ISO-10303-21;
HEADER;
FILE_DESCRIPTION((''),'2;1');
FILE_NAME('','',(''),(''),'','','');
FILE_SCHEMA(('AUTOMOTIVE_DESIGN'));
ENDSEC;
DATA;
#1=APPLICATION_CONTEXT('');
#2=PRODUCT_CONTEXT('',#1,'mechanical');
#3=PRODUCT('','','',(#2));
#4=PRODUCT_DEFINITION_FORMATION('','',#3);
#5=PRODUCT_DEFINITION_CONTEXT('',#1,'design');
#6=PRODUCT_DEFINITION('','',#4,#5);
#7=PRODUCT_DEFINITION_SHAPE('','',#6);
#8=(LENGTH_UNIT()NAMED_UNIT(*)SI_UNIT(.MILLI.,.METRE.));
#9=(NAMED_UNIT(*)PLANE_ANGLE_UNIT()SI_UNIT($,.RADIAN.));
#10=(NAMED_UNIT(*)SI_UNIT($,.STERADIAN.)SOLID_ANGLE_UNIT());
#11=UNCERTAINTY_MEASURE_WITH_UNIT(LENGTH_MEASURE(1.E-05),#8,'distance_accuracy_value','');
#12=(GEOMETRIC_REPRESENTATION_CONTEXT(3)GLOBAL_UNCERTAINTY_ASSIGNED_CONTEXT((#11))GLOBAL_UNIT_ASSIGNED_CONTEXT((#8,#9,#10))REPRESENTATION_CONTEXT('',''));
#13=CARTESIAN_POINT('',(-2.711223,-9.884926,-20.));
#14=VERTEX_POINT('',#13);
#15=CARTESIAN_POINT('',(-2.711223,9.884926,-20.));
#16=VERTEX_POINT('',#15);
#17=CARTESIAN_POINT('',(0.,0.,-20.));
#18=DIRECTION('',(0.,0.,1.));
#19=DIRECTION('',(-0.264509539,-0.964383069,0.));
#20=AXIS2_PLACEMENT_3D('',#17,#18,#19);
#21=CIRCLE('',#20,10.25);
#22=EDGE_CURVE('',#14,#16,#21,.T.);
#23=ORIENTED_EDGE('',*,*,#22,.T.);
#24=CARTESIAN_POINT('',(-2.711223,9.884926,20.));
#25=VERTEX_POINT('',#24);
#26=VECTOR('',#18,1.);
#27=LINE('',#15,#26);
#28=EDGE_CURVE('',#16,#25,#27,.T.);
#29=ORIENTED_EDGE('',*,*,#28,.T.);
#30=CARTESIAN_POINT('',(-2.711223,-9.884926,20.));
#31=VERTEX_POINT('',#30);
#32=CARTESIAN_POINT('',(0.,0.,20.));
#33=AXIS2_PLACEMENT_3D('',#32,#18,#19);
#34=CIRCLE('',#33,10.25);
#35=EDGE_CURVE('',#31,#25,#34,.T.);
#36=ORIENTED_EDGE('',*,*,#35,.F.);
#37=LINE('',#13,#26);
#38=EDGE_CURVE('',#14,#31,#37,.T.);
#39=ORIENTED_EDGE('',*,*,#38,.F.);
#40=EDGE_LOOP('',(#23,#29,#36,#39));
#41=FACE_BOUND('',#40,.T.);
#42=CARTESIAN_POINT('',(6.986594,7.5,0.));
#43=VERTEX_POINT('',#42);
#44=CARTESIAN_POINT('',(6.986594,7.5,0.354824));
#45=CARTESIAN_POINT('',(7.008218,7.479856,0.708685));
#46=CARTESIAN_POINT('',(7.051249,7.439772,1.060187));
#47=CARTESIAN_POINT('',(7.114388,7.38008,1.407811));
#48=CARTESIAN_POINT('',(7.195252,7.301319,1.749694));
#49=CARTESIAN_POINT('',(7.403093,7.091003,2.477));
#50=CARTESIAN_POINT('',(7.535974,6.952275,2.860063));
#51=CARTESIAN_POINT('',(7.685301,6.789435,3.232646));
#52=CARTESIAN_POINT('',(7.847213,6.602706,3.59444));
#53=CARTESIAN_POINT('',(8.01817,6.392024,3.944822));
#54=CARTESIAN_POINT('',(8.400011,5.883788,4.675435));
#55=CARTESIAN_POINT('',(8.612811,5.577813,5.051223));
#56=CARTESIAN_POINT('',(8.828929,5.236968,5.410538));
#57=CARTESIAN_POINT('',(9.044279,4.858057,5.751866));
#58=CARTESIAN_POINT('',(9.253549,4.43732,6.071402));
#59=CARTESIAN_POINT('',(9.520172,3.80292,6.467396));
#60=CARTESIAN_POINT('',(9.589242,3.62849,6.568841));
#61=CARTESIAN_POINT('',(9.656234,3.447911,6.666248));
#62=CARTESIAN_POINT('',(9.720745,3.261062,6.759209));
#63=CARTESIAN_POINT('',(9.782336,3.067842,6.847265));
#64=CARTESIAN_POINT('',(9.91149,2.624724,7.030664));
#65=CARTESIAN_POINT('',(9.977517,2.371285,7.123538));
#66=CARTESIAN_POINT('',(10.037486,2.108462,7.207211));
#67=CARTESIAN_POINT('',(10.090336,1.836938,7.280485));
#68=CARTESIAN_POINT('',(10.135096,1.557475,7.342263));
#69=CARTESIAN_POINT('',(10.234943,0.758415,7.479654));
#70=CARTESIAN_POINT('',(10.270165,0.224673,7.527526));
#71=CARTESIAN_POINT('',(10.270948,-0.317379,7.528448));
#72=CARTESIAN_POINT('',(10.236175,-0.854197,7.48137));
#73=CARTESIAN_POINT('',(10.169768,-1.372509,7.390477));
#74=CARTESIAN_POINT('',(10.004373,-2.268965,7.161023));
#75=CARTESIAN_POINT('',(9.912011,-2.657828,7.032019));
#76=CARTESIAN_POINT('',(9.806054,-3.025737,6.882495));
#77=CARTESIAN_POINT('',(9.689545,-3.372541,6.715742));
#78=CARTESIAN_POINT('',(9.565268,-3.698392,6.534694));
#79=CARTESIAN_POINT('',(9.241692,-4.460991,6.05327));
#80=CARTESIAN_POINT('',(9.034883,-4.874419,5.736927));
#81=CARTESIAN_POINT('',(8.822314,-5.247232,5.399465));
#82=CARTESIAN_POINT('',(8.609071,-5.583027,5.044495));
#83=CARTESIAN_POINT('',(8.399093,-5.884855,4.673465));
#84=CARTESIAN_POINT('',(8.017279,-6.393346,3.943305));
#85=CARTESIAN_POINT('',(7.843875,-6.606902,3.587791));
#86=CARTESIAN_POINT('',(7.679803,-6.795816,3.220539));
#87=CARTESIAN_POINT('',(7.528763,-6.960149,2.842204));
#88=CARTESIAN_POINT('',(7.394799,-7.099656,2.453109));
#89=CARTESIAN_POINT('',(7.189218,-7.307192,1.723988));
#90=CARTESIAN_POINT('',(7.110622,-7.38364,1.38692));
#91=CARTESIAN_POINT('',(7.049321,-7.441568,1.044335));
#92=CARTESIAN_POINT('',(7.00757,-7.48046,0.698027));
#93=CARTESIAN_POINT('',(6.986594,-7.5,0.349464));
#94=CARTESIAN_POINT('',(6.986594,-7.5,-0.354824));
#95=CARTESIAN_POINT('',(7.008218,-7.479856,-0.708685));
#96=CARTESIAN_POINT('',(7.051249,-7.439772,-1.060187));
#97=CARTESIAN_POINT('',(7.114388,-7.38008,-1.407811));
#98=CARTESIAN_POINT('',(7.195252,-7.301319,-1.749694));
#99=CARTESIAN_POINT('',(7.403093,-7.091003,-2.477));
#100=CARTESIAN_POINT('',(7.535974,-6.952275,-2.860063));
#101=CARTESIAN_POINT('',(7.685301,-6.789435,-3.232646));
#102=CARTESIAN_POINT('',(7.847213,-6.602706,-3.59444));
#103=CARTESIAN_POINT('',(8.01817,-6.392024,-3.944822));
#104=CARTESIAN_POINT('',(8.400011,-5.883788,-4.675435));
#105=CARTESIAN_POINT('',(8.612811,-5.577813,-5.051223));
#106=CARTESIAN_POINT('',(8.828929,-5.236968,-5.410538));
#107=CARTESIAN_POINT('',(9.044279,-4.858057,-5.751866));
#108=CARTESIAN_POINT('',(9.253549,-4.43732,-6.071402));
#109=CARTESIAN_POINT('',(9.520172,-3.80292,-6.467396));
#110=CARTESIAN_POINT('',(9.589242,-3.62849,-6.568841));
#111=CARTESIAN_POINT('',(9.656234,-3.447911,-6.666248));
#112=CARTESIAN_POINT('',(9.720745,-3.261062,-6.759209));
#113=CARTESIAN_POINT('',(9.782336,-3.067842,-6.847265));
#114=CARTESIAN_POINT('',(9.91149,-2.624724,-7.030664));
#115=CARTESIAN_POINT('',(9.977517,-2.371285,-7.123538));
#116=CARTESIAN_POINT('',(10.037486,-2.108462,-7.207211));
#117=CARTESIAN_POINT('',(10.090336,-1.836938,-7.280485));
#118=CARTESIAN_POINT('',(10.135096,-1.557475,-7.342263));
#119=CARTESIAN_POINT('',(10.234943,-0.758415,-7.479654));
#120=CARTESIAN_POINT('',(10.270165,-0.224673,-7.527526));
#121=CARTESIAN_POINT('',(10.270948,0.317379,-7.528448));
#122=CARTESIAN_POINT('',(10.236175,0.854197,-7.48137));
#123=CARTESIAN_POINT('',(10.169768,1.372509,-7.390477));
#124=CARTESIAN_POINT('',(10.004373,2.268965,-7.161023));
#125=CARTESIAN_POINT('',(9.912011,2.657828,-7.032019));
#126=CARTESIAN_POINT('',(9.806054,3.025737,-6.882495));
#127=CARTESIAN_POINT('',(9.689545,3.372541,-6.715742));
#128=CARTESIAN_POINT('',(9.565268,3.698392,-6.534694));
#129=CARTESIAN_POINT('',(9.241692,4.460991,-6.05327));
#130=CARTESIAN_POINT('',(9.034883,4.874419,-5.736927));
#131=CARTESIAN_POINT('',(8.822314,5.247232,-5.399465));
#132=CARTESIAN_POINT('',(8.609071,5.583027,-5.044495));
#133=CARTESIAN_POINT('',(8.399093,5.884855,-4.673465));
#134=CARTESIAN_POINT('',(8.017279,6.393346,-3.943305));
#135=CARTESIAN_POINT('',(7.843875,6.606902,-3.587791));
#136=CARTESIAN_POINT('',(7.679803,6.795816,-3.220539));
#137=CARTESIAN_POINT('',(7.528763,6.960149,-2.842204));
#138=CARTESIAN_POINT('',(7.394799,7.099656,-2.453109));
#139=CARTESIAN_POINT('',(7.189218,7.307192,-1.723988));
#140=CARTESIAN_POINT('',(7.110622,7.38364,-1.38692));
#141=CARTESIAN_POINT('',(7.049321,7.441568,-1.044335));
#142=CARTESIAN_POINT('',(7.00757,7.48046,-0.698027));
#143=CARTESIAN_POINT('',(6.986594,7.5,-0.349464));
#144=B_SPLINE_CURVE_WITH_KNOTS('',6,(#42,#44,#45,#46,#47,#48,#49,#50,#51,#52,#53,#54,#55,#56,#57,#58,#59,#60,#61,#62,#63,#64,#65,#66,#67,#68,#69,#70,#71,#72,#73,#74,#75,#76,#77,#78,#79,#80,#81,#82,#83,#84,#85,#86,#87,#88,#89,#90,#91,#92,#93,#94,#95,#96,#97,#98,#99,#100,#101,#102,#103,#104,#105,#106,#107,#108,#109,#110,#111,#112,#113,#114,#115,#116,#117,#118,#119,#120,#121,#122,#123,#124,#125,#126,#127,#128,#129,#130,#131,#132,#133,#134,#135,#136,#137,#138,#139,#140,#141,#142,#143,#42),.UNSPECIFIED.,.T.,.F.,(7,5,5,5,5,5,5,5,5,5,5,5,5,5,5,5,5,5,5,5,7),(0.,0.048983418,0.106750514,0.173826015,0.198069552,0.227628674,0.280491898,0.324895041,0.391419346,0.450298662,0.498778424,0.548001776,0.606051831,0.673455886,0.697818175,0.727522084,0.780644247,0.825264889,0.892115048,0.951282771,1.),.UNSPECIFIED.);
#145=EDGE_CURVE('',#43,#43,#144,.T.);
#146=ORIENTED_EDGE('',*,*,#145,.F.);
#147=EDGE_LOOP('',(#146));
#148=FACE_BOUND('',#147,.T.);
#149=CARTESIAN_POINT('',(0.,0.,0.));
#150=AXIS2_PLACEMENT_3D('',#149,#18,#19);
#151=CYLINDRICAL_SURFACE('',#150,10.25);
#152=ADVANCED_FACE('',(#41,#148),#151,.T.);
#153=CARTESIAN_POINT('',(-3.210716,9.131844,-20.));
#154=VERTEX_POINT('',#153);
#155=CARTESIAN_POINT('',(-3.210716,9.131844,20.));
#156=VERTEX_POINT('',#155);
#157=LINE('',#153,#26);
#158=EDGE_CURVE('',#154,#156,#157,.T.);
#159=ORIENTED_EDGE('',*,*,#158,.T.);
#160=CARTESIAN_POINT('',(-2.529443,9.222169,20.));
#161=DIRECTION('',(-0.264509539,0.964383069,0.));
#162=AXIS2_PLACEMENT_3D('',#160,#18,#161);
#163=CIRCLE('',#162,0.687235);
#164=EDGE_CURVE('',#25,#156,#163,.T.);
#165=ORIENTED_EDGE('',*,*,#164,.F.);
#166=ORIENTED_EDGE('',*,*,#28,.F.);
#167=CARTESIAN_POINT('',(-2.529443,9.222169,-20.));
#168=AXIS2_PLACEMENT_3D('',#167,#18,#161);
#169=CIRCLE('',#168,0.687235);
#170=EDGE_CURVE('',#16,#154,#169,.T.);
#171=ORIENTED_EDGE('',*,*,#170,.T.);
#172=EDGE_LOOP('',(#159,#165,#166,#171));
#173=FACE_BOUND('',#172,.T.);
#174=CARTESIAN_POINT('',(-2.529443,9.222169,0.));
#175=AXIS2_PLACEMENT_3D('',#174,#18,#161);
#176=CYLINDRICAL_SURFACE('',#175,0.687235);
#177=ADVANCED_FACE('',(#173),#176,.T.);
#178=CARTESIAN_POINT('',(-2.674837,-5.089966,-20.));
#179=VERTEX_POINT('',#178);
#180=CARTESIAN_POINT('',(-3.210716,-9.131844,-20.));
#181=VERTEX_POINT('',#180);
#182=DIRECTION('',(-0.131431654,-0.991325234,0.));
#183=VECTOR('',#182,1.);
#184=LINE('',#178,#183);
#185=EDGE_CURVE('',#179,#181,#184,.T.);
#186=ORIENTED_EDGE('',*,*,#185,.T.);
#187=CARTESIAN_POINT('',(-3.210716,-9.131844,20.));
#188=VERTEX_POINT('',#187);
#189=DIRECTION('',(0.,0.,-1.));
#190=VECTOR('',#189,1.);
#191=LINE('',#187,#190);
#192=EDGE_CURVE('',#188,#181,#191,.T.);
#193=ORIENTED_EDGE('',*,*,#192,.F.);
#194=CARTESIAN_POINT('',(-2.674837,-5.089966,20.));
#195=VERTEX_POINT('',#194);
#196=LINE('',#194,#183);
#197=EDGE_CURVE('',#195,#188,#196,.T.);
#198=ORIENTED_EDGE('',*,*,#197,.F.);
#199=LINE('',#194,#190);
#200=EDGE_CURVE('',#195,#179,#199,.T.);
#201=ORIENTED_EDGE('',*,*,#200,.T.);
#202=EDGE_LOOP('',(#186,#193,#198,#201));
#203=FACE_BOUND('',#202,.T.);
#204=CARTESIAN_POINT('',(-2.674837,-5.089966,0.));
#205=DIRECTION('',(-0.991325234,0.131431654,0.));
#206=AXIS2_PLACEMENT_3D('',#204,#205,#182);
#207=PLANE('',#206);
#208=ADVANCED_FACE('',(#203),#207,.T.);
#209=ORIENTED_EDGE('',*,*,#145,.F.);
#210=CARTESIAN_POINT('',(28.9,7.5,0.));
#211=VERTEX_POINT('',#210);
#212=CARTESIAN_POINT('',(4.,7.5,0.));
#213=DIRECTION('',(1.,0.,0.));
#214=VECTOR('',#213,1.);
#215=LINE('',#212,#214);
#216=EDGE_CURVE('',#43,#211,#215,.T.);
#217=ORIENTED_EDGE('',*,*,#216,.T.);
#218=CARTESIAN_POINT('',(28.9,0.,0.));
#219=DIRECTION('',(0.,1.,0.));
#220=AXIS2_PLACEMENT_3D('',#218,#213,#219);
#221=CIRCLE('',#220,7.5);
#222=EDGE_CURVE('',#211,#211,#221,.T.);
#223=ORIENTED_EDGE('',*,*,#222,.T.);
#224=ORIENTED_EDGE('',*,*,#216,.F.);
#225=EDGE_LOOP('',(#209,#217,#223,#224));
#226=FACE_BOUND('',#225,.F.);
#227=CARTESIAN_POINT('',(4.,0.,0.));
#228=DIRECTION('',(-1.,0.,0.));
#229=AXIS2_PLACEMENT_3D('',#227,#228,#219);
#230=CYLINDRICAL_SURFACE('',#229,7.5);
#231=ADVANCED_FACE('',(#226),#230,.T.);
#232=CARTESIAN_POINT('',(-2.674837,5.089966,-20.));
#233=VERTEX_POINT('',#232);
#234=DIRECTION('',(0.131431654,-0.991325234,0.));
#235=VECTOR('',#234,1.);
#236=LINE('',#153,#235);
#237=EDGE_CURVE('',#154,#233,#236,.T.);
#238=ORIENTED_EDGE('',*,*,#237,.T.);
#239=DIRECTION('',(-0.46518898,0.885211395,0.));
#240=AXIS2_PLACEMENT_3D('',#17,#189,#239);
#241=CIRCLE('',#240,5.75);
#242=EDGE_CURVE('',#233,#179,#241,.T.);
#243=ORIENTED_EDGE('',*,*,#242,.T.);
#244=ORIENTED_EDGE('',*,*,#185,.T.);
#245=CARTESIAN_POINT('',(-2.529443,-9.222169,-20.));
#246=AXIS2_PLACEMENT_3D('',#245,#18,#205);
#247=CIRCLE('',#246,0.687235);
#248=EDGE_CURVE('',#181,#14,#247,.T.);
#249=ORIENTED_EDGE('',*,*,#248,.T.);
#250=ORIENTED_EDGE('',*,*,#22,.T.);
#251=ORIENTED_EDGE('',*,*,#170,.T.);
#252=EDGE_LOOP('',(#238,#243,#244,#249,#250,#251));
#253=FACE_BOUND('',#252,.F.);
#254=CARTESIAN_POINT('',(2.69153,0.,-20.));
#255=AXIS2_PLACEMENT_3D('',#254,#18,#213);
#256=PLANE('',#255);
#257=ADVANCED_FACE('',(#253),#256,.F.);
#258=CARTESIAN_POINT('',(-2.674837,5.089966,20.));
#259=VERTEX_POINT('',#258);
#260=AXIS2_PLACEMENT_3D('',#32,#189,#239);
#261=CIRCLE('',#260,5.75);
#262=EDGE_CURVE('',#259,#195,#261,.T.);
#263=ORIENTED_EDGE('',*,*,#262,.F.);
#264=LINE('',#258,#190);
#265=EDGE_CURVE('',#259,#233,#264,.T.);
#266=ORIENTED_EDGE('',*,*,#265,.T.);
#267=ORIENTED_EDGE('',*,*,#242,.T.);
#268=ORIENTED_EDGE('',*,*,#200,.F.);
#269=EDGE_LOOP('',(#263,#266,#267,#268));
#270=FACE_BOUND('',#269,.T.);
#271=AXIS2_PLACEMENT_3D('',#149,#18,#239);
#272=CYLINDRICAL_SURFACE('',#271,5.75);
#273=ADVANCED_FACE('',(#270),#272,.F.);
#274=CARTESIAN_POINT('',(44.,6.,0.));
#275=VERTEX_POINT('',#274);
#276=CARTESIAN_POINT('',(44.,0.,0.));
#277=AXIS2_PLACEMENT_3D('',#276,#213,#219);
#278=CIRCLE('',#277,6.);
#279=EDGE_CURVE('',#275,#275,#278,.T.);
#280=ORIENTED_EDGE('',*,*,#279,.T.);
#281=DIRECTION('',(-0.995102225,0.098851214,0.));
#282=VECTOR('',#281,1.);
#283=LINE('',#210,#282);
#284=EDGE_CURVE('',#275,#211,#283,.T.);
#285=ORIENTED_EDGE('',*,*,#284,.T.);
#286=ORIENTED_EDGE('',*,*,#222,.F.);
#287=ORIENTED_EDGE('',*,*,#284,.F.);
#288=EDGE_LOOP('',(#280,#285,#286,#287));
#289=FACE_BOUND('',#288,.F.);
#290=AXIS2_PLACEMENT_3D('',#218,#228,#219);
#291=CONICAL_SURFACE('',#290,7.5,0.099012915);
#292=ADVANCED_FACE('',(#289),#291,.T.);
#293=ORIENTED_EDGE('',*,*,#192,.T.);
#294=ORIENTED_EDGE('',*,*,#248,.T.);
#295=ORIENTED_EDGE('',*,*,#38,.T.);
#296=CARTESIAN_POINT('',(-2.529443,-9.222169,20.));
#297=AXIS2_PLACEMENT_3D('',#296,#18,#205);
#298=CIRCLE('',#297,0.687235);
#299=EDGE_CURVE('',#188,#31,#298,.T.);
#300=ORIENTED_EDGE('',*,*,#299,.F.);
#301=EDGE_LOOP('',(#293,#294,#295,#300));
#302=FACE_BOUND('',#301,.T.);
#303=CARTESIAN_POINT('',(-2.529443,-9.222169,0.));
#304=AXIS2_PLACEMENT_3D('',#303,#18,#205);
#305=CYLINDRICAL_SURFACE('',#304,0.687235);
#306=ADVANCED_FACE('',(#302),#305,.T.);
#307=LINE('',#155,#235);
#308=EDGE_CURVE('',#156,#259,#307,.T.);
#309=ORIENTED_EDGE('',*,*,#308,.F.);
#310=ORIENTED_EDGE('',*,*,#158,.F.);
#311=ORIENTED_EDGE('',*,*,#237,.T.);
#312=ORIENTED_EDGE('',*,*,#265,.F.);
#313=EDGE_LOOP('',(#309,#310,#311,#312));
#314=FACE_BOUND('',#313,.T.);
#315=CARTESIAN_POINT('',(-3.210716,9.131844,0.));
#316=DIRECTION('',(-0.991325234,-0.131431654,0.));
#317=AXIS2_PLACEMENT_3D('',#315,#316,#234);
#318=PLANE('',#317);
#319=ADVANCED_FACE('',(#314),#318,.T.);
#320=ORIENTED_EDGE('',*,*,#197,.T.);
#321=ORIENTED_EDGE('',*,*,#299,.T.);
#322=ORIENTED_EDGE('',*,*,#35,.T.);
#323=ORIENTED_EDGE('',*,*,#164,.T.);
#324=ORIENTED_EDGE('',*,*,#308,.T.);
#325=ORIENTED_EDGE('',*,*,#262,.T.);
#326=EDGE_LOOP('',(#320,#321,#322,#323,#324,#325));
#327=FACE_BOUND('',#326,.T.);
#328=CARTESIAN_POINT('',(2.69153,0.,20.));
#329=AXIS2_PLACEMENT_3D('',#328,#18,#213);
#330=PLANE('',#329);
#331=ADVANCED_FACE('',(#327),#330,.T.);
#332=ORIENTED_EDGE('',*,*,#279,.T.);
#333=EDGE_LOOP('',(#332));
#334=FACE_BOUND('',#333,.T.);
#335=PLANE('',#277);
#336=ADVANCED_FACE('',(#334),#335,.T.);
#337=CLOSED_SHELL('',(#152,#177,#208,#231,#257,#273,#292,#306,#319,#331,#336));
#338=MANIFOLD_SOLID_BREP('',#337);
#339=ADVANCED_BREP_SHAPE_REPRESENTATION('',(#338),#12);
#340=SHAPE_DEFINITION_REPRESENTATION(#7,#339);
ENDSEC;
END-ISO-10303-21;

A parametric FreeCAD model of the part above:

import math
import FreeCAD as App
import Part
import Sketcher
from FreeCAD import Vector


def edges_at(feature, points):
    """Names of the edges that pass closest to the given points."""
    edges = feature.Shape.Edges
    near = lambda p: min(range(len(edges)), key=lambda i: edges[i].distToShape(Part.Vertex(*p))[0])
    return sorted({f"Edge{near(p) + 1}" for p in points})

doc = App.newDocument("Part")
body = doc.addObject("PartDesign::Body", "Body")

# Sketch on YZ plane
sketch1 = body.newObject("Sketcher::SketchObject", "Sketch")
sketch1.AttachmentSupport = (doc.getObject("YZ_Plane"), [""])
sketch1.MapMode = "FlatFace"
sketch1.AttachmentOffset = App.Placement(Vector(0, 0, 4), App.Rotation())
sketch1.addGeometry(Part.Circle(Vector(0, 0, 0), Vector(0, 0, 1), 8), False)
sketch1.addConstraint([
    Sketcher.Constraint("Coincident", 0, 3, -1, 1),
    Sketcher.Constraint("Diameter", 0, 15.0),
])
pad1 = body.newObject("PartDesign::Pad", "Pad")
pad1.Profile = sketch1
pad1.Length = 40
doc.recompute()

chamfer = body.newObject("PartDesign::Chamfer", "Chamfer")
chamfer.Base = (pad1, edges_at(pad1, [(44, -7.5, 0)]))
chamfer.ChamferType = "Two distances"
chamfer.Size = 1.5
chamfer.Size2 = 15.1
chamfer.FlipDirection = True

# Sketch on YZ plane
sketch2 = body.newObject("Sketcher::SketchObject", "Sketch001")
sketch2.AttachmentSupport = (doc.getObject("YZ_Plane"), [""])
sketch2.MapMode = "FlatFace"
sketch2.AttachmentOffset = App.Placement(Vector(0, 0, 4), App.Rotation())
sketch2.addGeometry(Part.Circle(Vector(0, 0, 0), Vector(0, 0, 1), 8), False)
sketch2.addConstraint([
    Sketcher.Constraint("Coincident", 0, 3, -1, 1),
    Sketcher.Constraint("Diameter", 0, 15.0),
])
pocket1 = body.newObject("PartDesign::Pocket", "Pocket")
pocket1.Profile = sketch2
pocket1.Length = 2.5
pocket1.Reversed = True

# Sketch on XY plane
sketch3 = body.newObject("Sketcher::SketchObject", "Sketch002")
sketch3.AttachmentSupport = (doc.getObject("XY_Plane"), [""])
sketch3.MapMode = "FlatFace"
sketch3.addGeometry([
    Part.ArcOfCircle(Part.Circle(Vector(-2.5, -9.2, 0), Vector(0, 0, 1), 0.7), math.radians(172), math.radians(255)),  # 0
    Part.ArcOfCircle(Part.Circle(Vector(0, 0, 0), Vector(0, 0, 1), 10.2), math.radians(-105), math.radians(105)),  # 1
    Part.ArcOfCircle(Part.Circle(Vector(-2.5, 9.2, 0), Vector(0, 0, 1), 0.7), math.radians(105), math.radians(188)),  # 2
    Part.LineSegment(Vector(-3.2, 9.1, 0), Vector(-2.7, 5.1, 0)),  # 3
    Part.ArcOfCircle(Part.Circle(Vector(0, 0, 0), Vector(0, 0, 1), 5.8), math.radians(-118), math.radians(118)),  # 4
    Part.LineSegment(Vector(-2.7, -5.1, 0), Vector(-3.2, -9.1, 0)),  # 5
], False)
sketch3.addConstraint([
    Sketcher.Constraint("Tangent", 0, 2, 1, 1),
    Sketcher.Constraint("Tangent", 1, 2, 2, 1),
    Sketcher.Constraint("Tangent", 2, 2, 3, 1),
    Sketcher.Constraint("Coincident", 3, 2, 4, 2),
    Sketcher.Constraint("Coincident", 4, 1, 5, 1),
    Sketcher.Constraint("Tangent", 5, 2, 0, 1),
    Sketcher.Constraint("Coincident", 1, 3, -1, 1),
    Sketcher.Constraint("Coincident", 4, 3, -1, 1),
    Sketcher.Constraint("Equal", 0, 2),
    Sketcher.Constraint("Symmetric", 2, 2, 5, 2, -1),
    Sketcher.Constraint("Radius", 1, 10.25),
    Sketcher.Constraint("Radius", 4, 5.75),
    Sketcher.Constraint("Radius", 0, 0.687235),
    Sketcher.Constraint("DistanceY", 0, 3, -1, 1, 9.222169),
    Sketcher.Constraint("DistanceX", 2, 2, 3, 2, 0.535879),
])
pad2 = body.newObject("PartDesign::Pad", "Pad001")
pad2.Profile = sketch3
pad2.Length = 40
pad2.Midplane = True

doc.recompute()
